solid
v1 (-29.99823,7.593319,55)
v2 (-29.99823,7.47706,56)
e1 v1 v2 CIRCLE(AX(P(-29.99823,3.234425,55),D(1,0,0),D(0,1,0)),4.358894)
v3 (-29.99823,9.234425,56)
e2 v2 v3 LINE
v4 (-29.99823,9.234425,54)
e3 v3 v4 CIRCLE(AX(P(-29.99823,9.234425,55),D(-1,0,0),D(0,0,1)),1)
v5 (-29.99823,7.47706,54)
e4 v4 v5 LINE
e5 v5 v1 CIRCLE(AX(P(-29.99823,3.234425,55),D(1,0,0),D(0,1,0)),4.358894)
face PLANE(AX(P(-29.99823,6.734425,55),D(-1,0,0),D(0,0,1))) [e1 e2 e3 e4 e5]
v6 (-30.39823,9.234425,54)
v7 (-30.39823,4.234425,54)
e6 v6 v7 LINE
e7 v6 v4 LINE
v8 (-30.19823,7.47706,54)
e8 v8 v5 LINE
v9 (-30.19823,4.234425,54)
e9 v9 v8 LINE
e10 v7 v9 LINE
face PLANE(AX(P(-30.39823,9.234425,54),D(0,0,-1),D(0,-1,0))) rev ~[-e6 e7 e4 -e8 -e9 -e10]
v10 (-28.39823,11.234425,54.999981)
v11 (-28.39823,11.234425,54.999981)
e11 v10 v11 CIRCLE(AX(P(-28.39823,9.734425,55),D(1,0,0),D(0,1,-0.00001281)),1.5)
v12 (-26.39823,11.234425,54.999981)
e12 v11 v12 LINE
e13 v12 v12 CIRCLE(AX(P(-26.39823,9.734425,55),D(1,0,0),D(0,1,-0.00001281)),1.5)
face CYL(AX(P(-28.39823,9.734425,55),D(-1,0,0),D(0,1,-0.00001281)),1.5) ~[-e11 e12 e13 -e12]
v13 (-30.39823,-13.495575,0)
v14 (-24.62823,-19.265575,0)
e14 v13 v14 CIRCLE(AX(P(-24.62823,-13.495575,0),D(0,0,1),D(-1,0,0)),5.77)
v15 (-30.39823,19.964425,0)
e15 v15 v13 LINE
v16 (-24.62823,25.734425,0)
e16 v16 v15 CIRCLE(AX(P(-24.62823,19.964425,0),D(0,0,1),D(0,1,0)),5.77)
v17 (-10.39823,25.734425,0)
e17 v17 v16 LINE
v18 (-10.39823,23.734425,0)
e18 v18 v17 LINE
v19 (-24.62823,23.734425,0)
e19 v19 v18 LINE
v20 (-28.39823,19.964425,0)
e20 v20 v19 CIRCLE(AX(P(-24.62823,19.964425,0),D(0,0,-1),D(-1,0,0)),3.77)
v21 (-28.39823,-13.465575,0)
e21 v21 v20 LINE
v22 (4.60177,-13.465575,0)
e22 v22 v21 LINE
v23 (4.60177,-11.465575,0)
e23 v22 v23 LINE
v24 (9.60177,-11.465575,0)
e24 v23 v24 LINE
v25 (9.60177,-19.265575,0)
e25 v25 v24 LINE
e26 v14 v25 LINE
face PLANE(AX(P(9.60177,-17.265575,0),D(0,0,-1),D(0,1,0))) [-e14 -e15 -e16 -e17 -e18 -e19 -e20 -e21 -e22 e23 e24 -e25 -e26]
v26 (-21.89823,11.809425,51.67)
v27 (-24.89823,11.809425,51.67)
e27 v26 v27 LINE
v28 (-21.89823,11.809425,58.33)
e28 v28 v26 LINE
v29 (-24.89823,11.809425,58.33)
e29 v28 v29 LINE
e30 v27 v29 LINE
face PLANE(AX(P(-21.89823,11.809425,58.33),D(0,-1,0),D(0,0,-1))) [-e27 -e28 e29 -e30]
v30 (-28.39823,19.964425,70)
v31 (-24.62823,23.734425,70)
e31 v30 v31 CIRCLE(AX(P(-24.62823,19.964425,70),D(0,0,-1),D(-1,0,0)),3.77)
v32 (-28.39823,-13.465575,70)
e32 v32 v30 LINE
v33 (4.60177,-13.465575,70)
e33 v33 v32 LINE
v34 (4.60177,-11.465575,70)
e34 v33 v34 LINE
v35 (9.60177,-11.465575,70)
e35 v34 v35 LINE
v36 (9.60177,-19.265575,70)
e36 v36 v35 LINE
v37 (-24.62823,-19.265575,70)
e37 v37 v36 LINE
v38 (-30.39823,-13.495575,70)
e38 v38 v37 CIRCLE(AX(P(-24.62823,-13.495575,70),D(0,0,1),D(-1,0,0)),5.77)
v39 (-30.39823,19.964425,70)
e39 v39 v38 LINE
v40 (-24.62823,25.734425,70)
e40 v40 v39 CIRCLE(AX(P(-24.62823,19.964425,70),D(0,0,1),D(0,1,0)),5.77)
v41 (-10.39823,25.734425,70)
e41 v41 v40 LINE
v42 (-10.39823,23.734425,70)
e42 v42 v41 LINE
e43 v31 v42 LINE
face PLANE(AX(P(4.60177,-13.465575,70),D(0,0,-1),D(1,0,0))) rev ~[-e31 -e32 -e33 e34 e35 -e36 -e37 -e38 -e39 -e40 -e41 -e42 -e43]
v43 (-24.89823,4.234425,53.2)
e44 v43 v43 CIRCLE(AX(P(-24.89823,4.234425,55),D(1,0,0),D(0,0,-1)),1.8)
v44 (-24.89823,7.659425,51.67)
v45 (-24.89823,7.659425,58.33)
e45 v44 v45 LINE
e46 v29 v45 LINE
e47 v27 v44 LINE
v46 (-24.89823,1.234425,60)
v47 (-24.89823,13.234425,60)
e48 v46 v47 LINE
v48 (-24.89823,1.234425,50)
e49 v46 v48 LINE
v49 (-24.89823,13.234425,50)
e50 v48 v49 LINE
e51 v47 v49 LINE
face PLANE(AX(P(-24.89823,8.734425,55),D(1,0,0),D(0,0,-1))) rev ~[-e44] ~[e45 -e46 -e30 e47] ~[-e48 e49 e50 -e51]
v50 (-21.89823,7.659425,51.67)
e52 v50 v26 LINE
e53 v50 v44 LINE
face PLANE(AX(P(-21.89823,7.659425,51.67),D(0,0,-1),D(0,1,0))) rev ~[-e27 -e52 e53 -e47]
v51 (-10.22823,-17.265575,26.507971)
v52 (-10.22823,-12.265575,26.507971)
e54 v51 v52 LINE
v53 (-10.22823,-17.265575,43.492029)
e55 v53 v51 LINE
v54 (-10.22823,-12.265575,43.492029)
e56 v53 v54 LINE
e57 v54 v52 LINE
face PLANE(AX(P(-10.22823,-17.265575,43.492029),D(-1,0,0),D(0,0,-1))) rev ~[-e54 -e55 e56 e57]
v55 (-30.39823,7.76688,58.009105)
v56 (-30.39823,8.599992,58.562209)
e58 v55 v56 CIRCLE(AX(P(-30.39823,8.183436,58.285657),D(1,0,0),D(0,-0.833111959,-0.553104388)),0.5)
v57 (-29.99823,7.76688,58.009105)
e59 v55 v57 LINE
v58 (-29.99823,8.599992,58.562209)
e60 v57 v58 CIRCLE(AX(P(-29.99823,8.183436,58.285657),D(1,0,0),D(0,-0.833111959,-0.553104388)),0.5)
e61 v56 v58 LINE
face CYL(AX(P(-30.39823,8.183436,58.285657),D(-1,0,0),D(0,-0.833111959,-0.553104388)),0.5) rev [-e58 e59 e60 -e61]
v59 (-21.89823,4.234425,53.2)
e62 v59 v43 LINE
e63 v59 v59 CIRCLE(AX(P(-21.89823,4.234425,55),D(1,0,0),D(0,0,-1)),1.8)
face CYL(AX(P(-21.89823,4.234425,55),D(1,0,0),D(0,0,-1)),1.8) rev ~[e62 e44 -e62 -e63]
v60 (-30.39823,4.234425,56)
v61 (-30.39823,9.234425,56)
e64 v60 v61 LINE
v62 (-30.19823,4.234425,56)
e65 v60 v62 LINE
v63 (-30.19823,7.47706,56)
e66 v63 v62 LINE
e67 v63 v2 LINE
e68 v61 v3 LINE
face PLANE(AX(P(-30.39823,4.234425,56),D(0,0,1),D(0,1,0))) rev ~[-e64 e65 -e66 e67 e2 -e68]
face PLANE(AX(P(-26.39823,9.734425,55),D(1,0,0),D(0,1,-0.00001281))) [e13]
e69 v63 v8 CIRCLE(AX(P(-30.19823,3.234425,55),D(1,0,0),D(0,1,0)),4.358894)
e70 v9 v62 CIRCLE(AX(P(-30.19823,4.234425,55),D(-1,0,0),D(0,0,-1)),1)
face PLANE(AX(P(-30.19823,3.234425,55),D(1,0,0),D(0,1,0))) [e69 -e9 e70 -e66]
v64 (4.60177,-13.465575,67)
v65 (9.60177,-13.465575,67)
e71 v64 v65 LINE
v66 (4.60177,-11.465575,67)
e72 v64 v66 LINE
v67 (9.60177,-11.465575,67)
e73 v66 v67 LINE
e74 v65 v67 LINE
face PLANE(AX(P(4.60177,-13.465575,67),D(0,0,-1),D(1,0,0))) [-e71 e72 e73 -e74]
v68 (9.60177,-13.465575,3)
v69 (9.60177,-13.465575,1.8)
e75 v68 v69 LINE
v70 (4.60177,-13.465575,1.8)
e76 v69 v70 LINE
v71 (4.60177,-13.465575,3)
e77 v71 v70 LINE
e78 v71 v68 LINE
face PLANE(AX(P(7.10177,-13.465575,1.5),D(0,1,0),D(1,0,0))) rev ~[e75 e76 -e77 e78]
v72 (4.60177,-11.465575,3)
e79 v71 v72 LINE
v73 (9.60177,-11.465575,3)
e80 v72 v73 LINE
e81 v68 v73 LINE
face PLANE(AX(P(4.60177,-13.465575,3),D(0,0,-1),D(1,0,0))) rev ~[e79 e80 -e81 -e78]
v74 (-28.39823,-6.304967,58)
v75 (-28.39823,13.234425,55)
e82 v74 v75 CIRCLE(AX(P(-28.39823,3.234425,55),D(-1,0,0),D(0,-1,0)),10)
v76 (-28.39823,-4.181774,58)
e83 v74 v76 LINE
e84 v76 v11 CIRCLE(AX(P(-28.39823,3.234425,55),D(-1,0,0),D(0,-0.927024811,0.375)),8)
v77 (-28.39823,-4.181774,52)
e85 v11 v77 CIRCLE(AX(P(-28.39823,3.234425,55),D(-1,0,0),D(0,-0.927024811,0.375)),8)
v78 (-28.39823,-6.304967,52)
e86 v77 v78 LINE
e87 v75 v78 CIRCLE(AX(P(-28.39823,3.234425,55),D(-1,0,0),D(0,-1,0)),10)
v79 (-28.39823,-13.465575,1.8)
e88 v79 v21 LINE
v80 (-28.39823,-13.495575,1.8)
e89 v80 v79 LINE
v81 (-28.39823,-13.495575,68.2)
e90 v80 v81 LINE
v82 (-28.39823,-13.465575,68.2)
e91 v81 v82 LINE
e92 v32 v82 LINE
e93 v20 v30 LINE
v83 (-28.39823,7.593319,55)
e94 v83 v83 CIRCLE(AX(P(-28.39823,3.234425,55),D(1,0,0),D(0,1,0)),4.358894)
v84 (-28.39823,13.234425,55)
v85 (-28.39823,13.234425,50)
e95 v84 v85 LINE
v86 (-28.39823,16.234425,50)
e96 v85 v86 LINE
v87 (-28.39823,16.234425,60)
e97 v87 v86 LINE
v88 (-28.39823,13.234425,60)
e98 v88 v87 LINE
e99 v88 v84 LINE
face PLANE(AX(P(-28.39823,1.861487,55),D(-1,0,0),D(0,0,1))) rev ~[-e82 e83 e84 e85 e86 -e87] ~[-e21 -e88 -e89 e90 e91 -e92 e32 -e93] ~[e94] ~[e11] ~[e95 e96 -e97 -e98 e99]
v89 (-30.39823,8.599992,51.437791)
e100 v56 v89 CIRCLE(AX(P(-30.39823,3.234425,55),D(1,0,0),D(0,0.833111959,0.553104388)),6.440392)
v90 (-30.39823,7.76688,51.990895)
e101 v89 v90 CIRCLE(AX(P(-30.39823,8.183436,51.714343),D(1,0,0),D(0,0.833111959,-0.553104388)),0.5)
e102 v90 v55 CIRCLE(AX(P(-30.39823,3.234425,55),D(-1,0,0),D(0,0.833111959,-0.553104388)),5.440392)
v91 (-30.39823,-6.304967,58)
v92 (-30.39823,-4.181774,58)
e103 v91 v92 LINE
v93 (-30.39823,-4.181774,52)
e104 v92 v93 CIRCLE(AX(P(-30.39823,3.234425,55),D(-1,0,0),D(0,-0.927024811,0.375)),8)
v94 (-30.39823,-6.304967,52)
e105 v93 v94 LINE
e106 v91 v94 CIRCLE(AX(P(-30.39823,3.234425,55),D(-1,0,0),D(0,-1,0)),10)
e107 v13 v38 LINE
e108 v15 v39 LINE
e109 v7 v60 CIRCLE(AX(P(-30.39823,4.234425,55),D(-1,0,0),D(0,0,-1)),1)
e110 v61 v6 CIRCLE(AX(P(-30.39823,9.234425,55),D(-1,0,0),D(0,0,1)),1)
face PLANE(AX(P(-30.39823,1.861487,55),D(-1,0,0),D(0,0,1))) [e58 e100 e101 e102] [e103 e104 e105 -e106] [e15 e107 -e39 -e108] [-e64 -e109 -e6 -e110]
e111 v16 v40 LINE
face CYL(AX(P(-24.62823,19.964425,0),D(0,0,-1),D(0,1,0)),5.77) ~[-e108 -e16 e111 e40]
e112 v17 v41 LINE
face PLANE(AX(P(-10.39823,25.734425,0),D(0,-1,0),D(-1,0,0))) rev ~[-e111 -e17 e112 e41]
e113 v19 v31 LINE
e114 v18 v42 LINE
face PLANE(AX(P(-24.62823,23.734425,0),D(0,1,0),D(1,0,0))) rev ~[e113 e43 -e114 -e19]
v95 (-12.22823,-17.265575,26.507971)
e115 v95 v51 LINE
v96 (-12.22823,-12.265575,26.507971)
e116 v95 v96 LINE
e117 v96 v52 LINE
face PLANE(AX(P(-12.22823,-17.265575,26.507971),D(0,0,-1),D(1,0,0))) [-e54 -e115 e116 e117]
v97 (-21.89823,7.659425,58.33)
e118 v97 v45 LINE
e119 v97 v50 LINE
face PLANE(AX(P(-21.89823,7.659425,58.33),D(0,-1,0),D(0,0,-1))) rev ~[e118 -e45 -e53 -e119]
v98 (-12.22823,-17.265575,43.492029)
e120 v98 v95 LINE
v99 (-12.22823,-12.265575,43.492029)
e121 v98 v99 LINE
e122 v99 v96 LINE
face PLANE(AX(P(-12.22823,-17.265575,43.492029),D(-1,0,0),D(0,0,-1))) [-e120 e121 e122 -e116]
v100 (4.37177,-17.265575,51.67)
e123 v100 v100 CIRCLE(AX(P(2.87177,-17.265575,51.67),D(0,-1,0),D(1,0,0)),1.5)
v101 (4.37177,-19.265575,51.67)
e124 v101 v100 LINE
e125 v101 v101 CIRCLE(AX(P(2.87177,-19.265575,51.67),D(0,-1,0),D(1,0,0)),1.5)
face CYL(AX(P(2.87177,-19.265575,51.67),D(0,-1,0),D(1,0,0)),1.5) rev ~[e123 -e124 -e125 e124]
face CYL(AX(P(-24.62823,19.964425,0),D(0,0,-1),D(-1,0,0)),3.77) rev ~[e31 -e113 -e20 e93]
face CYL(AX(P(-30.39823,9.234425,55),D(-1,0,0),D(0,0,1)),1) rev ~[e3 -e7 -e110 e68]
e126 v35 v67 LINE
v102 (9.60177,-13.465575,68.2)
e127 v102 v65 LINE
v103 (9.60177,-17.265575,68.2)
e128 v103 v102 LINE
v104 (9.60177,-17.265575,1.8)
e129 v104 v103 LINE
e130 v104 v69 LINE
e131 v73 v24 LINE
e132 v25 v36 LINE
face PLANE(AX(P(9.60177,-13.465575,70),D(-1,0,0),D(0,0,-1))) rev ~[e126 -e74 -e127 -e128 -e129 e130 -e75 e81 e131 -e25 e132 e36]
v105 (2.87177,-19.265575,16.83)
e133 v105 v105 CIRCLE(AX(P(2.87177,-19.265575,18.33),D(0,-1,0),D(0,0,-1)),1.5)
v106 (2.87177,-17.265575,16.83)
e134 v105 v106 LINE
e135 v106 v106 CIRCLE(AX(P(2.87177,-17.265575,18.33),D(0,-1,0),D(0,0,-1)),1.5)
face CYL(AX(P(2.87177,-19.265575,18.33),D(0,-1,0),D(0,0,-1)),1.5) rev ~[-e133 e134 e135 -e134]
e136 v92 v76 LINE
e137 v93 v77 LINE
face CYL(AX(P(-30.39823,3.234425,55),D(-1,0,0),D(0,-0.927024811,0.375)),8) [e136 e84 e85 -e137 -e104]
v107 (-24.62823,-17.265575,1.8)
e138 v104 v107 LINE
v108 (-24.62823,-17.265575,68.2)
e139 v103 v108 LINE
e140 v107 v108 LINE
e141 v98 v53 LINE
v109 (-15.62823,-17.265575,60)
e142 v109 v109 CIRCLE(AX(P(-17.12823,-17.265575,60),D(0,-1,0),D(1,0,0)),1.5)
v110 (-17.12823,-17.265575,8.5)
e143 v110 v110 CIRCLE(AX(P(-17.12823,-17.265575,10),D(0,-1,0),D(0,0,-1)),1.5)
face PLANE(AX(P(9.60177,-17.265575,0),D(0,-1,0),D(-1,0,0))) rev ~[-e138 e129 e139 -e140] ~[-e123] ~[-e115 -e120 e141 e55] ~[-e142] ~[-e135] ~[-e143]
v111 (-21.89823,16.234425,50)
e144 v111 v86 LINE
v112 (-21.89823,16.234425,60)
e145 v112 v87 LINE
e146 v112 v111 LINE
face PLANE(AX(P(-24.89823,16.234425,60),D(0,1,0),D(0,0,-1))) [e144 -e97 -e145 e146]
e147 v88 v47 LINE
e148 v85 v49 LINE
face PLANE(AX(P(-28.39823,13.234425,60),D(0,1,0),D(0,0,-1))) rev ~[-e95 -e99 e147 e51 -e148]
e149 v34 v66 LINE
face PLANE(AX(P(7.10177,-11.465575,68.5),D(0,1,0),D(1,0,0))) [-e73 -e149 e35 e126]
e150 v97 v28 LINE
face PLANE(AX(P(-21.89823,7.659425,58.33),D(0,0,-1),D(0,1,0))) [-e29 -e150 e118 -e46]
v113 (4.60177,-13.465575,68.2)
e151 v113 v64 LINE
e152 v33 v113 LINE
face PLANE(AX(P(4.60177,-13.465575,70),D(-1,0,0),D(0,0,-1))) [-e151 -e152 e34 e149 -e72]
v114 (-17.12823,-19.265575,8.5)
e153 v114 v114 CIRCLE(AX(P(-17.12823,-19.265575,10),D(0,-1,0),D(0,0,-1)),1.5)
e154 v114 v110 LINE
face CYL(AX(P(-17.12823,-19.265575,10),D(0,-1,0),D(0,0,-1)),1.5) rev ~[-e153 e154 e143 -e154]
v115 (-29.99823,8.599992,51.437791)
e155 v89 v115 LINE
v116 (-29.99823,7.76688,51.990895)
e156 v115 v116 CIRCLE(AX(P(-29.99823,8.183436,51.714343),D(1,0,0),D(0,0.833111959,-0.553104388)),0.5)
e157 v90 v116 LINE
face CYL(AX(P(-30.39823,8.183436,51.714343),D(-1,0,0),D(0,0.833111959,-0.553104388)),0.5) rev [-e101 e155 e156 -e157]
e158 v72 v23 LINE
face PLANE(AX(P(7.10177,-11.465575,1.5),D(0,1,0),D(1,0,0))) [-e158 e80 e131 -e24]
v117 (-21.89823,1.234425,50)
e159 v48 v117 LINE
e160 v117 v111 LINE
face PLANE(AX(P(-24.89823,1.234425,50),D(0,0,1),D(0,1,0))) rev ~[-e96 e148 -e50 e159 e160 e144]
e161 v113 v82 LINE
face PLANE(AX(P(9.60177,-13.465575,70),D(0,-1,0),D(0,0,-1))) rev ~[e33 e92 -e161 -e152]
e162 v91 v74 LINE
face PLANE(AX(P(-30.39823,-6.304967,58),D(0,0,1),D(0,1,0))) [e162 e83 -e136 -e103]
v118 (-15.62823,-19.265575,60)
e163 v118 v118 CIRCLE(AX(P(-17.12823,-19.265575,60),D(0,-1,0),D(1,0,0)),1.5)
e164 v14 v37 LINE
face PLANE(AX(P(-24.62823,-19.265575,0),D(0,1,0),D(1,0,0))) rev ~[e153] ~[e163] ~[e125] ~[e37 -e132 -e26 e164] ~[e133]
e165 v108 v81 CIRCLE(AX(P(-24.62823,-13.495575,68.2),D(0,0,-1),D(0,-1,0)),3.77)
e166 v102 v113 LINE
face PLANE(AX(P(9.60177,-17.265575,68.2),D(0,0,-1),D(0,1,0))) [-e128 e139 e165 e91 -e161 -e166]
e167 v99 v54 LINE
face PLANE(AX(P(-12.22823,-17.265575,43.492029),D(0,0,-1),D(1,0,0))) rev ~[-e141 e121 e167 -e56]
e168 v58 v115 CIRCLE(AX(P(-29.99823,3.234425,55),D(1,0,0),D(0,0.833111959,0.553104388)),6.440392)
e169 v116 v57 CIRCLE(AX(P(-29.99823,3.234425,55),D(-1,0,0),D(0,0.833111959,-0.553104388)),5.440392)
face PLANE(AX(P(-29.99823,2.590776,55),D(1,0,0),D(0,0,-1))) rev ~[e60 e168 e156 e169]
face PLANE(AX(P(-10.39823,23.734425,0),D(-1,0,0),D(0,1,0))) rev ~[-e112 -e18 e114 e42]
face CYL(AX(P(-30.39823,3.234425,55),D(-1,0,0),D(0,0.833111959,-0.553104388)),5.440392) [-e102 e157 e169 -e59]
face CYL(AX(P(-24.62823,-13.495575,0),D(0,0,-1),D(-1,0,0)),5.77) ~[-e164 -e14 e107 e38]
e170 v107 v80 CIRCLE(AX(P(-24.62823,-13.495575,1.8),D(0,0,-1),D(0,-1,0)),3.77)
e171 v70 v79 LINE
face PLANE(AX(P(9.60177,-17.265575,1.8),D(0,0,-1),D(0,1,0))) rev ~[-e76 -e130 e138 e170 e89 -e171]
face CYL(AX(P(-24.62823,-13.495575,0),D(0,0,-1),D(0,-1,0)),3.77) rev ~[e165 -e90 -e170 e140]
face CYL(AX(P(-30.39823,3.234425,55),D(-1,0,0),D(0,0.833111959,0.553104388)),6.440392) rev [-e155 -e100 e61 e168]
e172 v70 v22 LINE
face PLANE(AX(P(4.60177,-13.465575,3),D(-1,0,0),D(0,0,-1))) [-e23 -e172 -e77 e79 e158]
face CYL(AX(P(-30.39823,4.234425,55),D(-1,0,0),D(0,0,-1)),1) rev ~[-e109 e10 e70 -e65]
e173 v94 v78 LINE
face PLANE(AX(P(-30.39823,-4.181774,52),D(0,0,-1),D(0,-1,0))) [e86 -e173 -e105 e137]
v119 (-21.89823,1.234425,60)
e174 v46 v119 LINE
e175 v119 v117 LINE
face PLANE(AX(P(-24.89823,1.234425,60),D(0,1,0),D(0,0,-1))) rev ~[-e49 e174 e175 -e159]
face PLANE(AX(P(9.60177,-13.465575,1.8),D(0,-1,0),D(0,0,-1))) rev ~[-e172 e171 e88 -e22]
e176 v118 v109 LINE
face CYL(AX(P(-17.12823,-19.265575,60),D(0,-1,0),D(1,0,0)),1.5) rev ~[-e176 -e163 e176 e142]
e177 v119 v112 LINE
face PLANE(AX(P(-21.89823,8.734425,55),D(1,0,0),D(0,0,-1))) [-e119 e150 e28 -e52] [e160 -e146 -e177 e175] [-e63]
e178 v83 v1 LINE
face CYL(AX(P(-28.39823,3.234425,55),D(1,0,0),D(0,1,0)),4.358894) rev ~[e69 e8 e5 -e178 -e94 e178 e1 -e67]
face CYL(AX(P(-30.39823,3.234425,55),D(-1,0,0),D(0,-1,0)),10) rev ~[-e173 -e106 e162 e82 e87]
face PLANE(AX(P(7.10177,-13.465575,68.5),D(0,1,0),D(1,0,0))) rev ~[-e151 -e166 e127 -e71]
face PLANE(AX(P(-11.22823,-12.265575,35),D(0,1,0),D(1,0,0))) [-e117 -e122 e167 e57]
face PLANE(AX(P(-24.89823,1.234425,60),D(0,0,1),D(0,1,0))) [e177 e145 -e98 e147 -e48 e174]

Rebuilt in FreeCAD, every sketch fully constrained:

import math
import FreeCAD as App
import Part
import Sketcher

V = App.Vector

doc = App.newDocument("Part")
body = doc.addObject("PartDesign::Body", "Body")

sketch1 = doc.addObject("Sketcher::SketchObject", "Sketch")
body.addObject(sketch1)
sketch1.AttachmentSupport = (doc.XY_Plane, [""])
sketch1.MapMode = "FlatFace"
sketch1.addGeometry([
    Part.LineSegment(V(-30.39823, 19.964425, 0), V(-30.39823, -13.495575, 0)),
    Part.ArcOfCircle(Part.Circle(V(-24.62823, -13.495575, 0), V(0, 0, 1), 5.77), math.radians(180), math.radians(270)),
    Part.LineSegment(V(-24.62823, -19.265575, 0), V(9.60177, -19.265575, 0)),
    Part.LineSegment(V(9.60177, -19.265575, 0), V(9.60177, -17.265575, 0)),
    Part.LineSegment(V(9.60177, -17.265575, 0), V(-24.62823, -17.265575, 0)),
    Part.ArcOfCircle(Part.Circle(V(-24.62823, -13.495575, 0), V(0, 0, 1), 3.77), math.radians(180), math.radians(270)),
    Part.LineSegment(V(-28.39823, -13.495575, 0), V(-28.39823, 19.964425, 0)),
    Part.ArcOfCircle(Part.Circle(V(-24.62823, 19.964425, 0), V(0, 0, 1), 3.77), math.radians(90), math.radians(180)),
    Part.LineSegment(V(-24.62823, 23.734425, 0), V(-10.39823, 23.734425, 0)),
    Part.LineSegment(V(-10.39823, 23.734425, 0), V(-10.39823, 25.734425, 0)),
    Part.LineSegment(V(-10.39823, 25.734425, 0), V(-24.62823, 25.734425, 0)),
    Part.ArcOfCircle(Part.Circle(V(-24.62823, 19.964425, 0), V(0, 0, 1), 5.77), math.radians(90), math.radians(180)),
], False)
sketch1.addConstraint([
    Sketcher.Constraint("Tangent", 0, 2, 1, 1),
    Sketcher.Constraint("Tangent", 1, 2, 2, 1),
    Sketcher.Constraint("Coincident", 2, 2, 3, 1),
    Sketcher.Constraint("Coincident", 3, 2, 4, 1),
    Sketcher.Constraint("Tangent", 4, 2, 5, 2),
    Sketcher.Constraint("Tangent", 5, 1, 6, 1),
    Sketcher.Constraint("Tangent", 6, 2, 7, 2),
    Sketcher.Constraint("Tangent", 7, 1, 8, 1),
    Sketcher.Constraint("Coincident", 8, 2, 9, 1),
    Sketcher.Constraint("Coincident", 9, 2, 10, 1),
    Sketcher.Constraint("Tangent", 10, 2, 11, 1),
    Sketcher.Constraint("Tangent", 11, 2, 0, 1),
    Sketcher.Constraint("Vertical", 0),
    Sketcher.Constraint("Horizontal", 2),
    Sketcher.Constraint("Vertical", 3),
    Sketcher.Constraint("Horizontal", 4),
    Sketcher.Constraint("Vertical", 6),
    Sketcher.Constraint("Horizontal", 8),
    Sketcher.Constraint("Vertical", 9),
    Sketcher.Constraint("Horizontal", 10),
    Sketcher.Constraint("Coincident", 5, 3, 1, 3),
    Sketcher.Constraint("Coincident", 11, 3, 7, 3),
    Sketcher.Constraint("Equal", 5, 7),
    Sketcher.Constraint("DistanceY", 3, 1, 3, 2, 2.0),
    Sketcher.Constraint("Radius", 1, 5.77),
    Sketcher.Constraint("DistanceX", 0, 2, 2, 2, 40.0),
    Sketcher.Constraint("DistanceX", 6, 2, 8, 2, 18.0),
    Sketcher.Constraint("DistanceY", 0, 2, 0, 1, 33.46),
    Sketcher.Constraint("DistanceX", 1, 3, -1, 1, 24.62823),
    Sketcher.Constraint("DistanceY", 1, 3, -1, 1, 13.495575),
])
pad1 = doc.addObject("PartDesign::Pad", "Pad")
body.addObject(pad1)
pad1.Profile = sketch1
pad1.Length = 70

sketch2 = doc.addObject("Sketcher::SketchObject", "Sketch001")
body.addObject(sketch2)
sketch2.AttachmentSupport = (doc.YZ_Plane, [""])
sketch2.MapMode = "FlatFace"
sketch2.AttachmentOffset = App.Placement(V(0, 0, 9.60177), App.Rotation())
sketch2.addGeometry([
    Part.LineSegment(V(-13.465575, 70, 0), V(-17.265575, 70, 0)),
    Part.LineSegment(V(-17.265575, 70, 0), V(-17.265575, 68.2, 0)),
    Part.LineSegment(V(-17.265575, 68.2, 0), V(-13.465575, 68.2, 0)),
    Part.LineSegment(V(-13.465575, 68.2, 0), V(-13.465575, 70, 0)),
], False)
sketch2.addConstraint([
    Sketcher.Constraint("Coincident", 0, 2, 1, 1),
    Sketcher.Constraint("Coincident", 1, 2, 2, 1),
    Sketcher.Constraint("Coincident", 2, 2, 3, 1),
    Sketcher.Constraint("Coincident", 3, 2, 0, 1),
    Sketcher.Constraint("Horizontal", 0),
    Sketcher.Constraint("Vertical", 1),
    Sketcher.Constraint("Horizontal", 2),
    Sketcher.Constraint("Vertical", 3),
    Sketcher.Constraint("DistanceX", 0, 2, 0, 1, 3.8),
    Sketcher.Constraint("DistanceY", 1, 2, 1, 1, 1.8),
    Sketcher.Constraint("DistanceY", -1, 1, 0, 2, 70.0),
    Sketcher.Constraint("DistanceX", 0, 2, -1, 1, 17.265575),
])
pad2 = doc.addObject("PartDesign::Pad", "Pad001")
body.addObject(pad2)
pad2.Profile = sketch2
pad2.Type = "UpToFirst"
pad2.Reversed = True

sketch3 = doc.addObject("Sketcher::SketchObject", "Sketch002")
body.addObject(sketch3)
sketch3.AttachmentSupport = (doc.YZ_Plane, [""])
sketch3.MapMode = "FlatFace"
sketch3.AttachmentOffset = App.Placement(V(0, 0, 9.60177), App.Rotation())
sketch3.addGeometry([
    Part.LineSegment(V(-13.465575, 1.8, 0), V(-17.265575, 1.8, 0)),
    Part.LineSegment(V(-17.265575, 1.8, 0), V(-17.265575, 0, 0)),
    Part.LineSegment(V(-17.265575, 0, 0), V(-13.465575, 0, 0)),
    Part.LineSegment(V(-13.465575, 0, 0), V(-13.465575, 1.8, 0)),
], False)
sketch3.addConstraint([
    Sketcher.Constraint("Coincident", 0, 2, 1, 1),
    Sketcher.Constraint("Coincident", 1, 2, 2, 1),
    Sketcher.Constraint("Coincident", 2, 2, 3, 1),
    Sketcher.Constraint("Coincident", 3, 2, 0, 1),
    Sketcher.Constraint("Horizontal", 0),
    Sketcher.Constraint("Vertical", 1),
    Sketcher.Constraint("Horizontal", 2),
    Sketcher.Constraint("Vertical", 3),
    Sketcher.Constraint("PointOnObject", 1, 2, -1),
    Sketcher.Constraint("DistanceX", 0, 2, 0, 1, 3.8),
    Sketcher.Constraint("DistanceY", 1, 2, 1, 1, 1.8),
    Sketcher.Constraint("DistanceX", 0, 2, -1, 1, 17.265575),
])
pad3 = doc.addObject("PartDesign::Pad", "Pad002")
body.addObject(pad3)
pad3.Profile = sketch3
pad3.Type = "UpToFirst"
pad3.Reversed = True

sketch4 = doc.addObject("Sketcher::SketchObject", "Sketch003")
body.addObject(sketch4)
sketch4.AttachmentSupport = (doc.XZ_Plane, [""])
sketch4.MapMode = "FlatFace"
sketch4.AttachmentOffset = App.Placement(V(0, 0, 13.465575), App.Rotation())
sketch4.addGeometry([
    Part.LineSegment(V(4.60177, 67, 0), V(4.60177, 70, 0)),
    Part.LineSegment(V(4.60177, 70, 0), V(9.60177, 70, 0)),
    Part.LineSegment(V(9.60177, 70, 0), V(9.60177, 67, 0)),
    Part.LineSegment(V(9.60177, 67, 0), V(4.60177, 67, 0)),
    Part.LineSegment(V(4.60177, 0, 0), V(4.60177, 3, 0)),
    Part.LineSegment(V(4.60177, 3, 0), V(9.60177, 3, 0)),
    Part.LineSegment(V(9.60177, 3, 0), V(9.60177, 0, 0)),
    Part.LineSegment(V(9.60177, 0, 0), V(4.60177, 0, 0)),
], False)
sketch4.addConstraint([
    Sketcher.Constraint("Coincident", 0, 2, 1, 1),
    Sketcher.Constraint("Coincident", 1, 2, 2, 1),
    Sketcher.Constraint("Coincident", 2, 2, 3, 1),
    Sketcher.Constraint("Coincident", 3, 2, 0, 1),
    Sketcher.Constraint("Coincident", 4, 2, 5, 1),
    Sketcher.Constraint("Coincident", 5, 2, 6, 1),
    Sketcher.Constraint("Coincident", 6, 2, 7, 1),
    Sketcher.Constraint("Coincident", 7, 2, 4, 1),
    Sketcher.Constraint("Vertical", 0),
    Sketcher.Constraint("Horizontal", 1),
    Sketcher.Constraint("Vertical", 2),
    Sketcher.Constraint("Horizontal", 3),
    Sketcher.Constraint("Vertical", 4),
    Sketcher.Constraint("Horizontal", 5),
    Sketcher.Constraint("Vertical", 6),
    Sketcher.Constraint("Horizontal", 7),
    Sketcher.Constraint("PointOnObject", 6, 2, -1),
    Sketcher.Constraint("Vertical", 3, 2, 4, 2),
    Sketcher.Constraint("Vertical", 2, 2, 5, 2),
    Sketcher.Constraint("Equal", 2, 4),
    Sketcher.Constraint("DistanceX", 1, 1, 1, 2, 5.0),
    Sketcher.Constraint("DistanceY", 0, 1, 0, 2, 3.0),
    Sketcher.Constraint("DistanceY", -1, 1, 0, 2, 70.0),
    Sketcher.Constraint("DistanceX", -1, 1, 0, 2, 4.60177),
])
pad4 = doc.addObject("PartDesign::Pad", "Pad003")
body.addObject(pad4)
pad4.Profile = sketch4
pad4.Length = 2
pad4.Reversed = True

sketch5 = doc.addObject("Sketcher::SketchObject", "Sketch004")
body.addObject(sketch5)
sketch5.AttachmentSupport = (doc.XZ_Plane, [""])
sketch5.MapMode = "FlatFace"
sketch5.AttachmentOffset = App.Placement(V(0, 0, 19.265575), App.Rotation())
sketch5.addGeometry(Part.Circle(V(-17.12823, 60, 0), V(0, 0, 1), 1.5), False)
sketch5.addConstraint([
    Sketcher.Constraint("Diameter", 0, 3.0),
    Sketcher.Constraint("DistanceY", -1, 1, 0, 3, 60.0),
    Sketcher.Constraint("DistanceX", 0, 3, -1, 1, 17.12823),
])
pocket1 = doc.addObject("PartDesign::Pocket", "Pocket")
body.addObject(pocket1)
pocket1.Profile = sketch5
pocket1.Type = "UpToFirst"

sketch6 = doc.addObject("Sketcher::SketchObject", "Sketch005")
body.addObject(sketch6)
sketch6.AttachmentSupport = (doc.XZ_Plane, [""])
sketch6.MapMode = "FlatFace"
sketch6.AttachmentOffset = App.Placement(V(0, 0, 19.265575), App.Rotation())
sketch6.addGeometry(Part.Circle(V(-17.12823, 10, 0), V(0, 0, 1), 1.5), False)
sketch6.addConstraint([
    Sketcher.Constraint("Diameter", 0, 3.0),
    Sketcher.Constraint("DistanceY", -1, 1, 0, 3, 10.0),
    Sketcher.Constraint("DistanceX", 0, 3, -1, 1, 17.12823),
])
pocket2 = doc.addObject("PartDesign::Pocket", "Pocket001")
body.addObject(pocket2)
pocket2.Profile = sketch6
pocket2.Type = "UpToFirst"

sketch7 = doc.addObject("Sketcher::SketchObject", "Sketch006")
body.addObject(sketch7)
sketch7.AttachmentSupport = (doc.XZ_Plane, [""])
sketch7.MapMode = "FlatFace"
sketch7.AttachmentOffset = App.Placement(V(0, 0, 19.265575), App.Rotation())
sketch7.addGeometry(Part.Circle(V(2.87177, 51.67, 0), V(0, 0, 1), 1.5), False)
sketch7.addConstraint([
    Sketcher.Constraint("Diameter", 0, 3.0),
    Sketcher.Constraint("DistanceY", -1, 1, 0, 3, 51.67),
    Sketcher.Constraint("DistanceX", -1, 1, 0, 3, 2.87177),
])
pocket3 = doc.addObject("PartDesign::Pocket", "Pocket002")
body.addObject(pocket3)
pocket3.Profile = sketch7
pocket3.Type = "UpToFirst"

sketch8 = doc.addObject("Sketcher::SketchObject", "Sketch007")
body.addObject(sketch8)
sketch8.AttachmentSupport = (doc.XZ_Plane, [""])
sketch8.MapMode = "FlatFace"
sketch8.AttachmentOffset = App.Placement(V(0, 0, 19.265575), App.Rotation())
sketch8.addGeometry(Part.Circle(V(2.87177, 18.33, 0), V(0, 0, 1), 1.5), False)
sketch8.addConstraint([
    Sketcher.Constraint("Diameter", 0, 3.0),
    Sketcher.Constraint("DistanceY", -1, 1, 0, 3, 18.33),
    Sketcher.Constraint("DistanceX", -1, 1, 0, 3, 2.87177),
])
pocket4 = doc.addObject("PartDesign::Pocket", "Pocket003")
body.addObject(pocket4)
pocket4.Profile = sketch8
pocket4.Type = "UpToFirst"

sketch9 = doc.addObject("Sketcher::SketchObject", "Sketch008")
body.addObject(sketch9)
sketch9.AttachmentSupport = (doc.YZ_Plane, [""])
sketch9.MapMode = "FlatFace"
sketch9.AttachmentOffset = App.Placement(V(0, 0, -30.39823), App.Rotation())
sketch9.addGeometry(Part.Circle(V(3.234425, 55, 0), V(0, 0, 1), 10), False)
sketch9.addConstraint([
    Sketcher.Constraint("Diameter", 0, 20.0),
    Sketcher.Constraint("DistanceY", -1, 1, 0, 3, 55.0),
    Sketcher.Constraint("DistanceX", -1, 1, 0, 3, 3.234425),
])
pocket5 = doc.addObject("PartDesign::Pocket", "Pocket004")
body.addObject(pocket5)
pocket5.Profile = sketch9
pocket5.Type = "ThroughAll"
pocket5.Reversed = True

sketch10 = doc.addObject("Sketcher::SketchObject", "Sketch009")
body.addObject(sketch10)
sketch10.AttachmentSupport = (doc.YZ_Plane, [""])
sketch10.MapMode = "FlatFace"
sketch10.AttachmentOffset = App.Placement(V(0, 0, -30.39823), App.Rotation())
sketch10.addGeometry([
    Part.LineSegment(V(-4.181774, 52, 0), V(-6.304967, 52, 0)),
    Part.ArcOfCircle(Part.Circle(V(3.234425, 55, 0), V(0, 0, 1), 10), math.radians(162.542397), math.radians(197.457603)),
    Part.LineSegment(V(-6.304967, 58, 0), V(-4.181774, 58, 0)),
    Part.ArcOfCircle(Part.Circle(V(3.234425, 55, 0), V(0, 0, 1), 8), math.radians(-157.975687), math.radians(157.975687)),
], False)
sketch10.addConstraint([
    Sketcher.Constraint("Coincident", 0, 2, 1, 2),
    Sketcher.Constraint("Coincident", 1, 1, 2, 1),
    Sketcher.Constraint("Coincident", 2, 2, 3, 2),
    Sketcher.Constraint("Coincident", 3, 1, 0, 1),
    Sketcher.Constraint("Horizontal", 0),
    Sketcher.Constraint("Horizontal", 2),
    Sketcher.Constraint("Coincident", 3, 3, 1, 3),
    Sketcher.Constraint("Vertical", 0, 2, 1, 1),
    Sketcher.Constraint("Radius", 1, 10.0),
    Sketcher.Constraint("Radius", 3, 8.0),
    Sketcher.Constraint("DistanceY", -1, 1, 1, 3, 55.0),
    Sketcher.Constraint("DistanceY", -1, 1, 0, 2, 52.0),
    Sketcher.Constraint("DistanceX", -1, 1, 1, 3, 3.234425),
])
pad5 = doc.addObject("PartDesign::Pad", "Pad004")
body.addObject(pad5)
pad5.Profile = sketch10
pad5.Length = 2

sketch11 = doc.addObject("Sketcher::SketchObject", "Sketch010")
body.addObject(sketch11)
sketch11.AttachmentSupport = (doc.YZ_Plane, [""])
sketch11.MapMode = "FlatFace"
sketch11.AttachmentOffset = App.Placement(V(0, 0, -28.39823), App.Rotation())
sketch11.addGeometry(Part.Circle(V(3.234425, 55, 0), V(0, 0, 1), 4.358894), False)
sketch11.addConstraint([
    Sketcher.Constraint("DistanceY", -1, 1, 0, 3, 55.0),
    Sketcher.Constraint("Diameter", 0, 8.717788),
    Sketcher.Constraint("DistanceX", -1, 1, 0, 3, 3.234425),
])
pocket6 = doc.addObject("PartDesign::Pocket", "Pocket005")
body.addObject(pocket6)
pocket6.Profile = sketch11
pocket6.Length = 1.8

sketch12 = doc.addObject("Sketcher::SketchObject", "Sketch011")
body.addObject(sketch12)
sketch12.AttachmentSupport = (doc.YZ_Plane, [""])
sketch12.MapMode = "FlatFace"
sketch12.AttachmentOffset = App.Placement(V(0, 0, -28.39823), App.Rotation())
sketch12.addGeometry(Part.Circle(V(9.734425, 55, 0), V(0, 0, 1), 1.5), False)
sketch12.addConstraint([
    Sketcher.Constraint("Diameter", 0, 3.0),
    Sketcher.Constraint("DistanceY", -1, 1, 0, 3, 55.0),
    Sketcher.Constraint("DistanceX", -1, 1, 0, 3, 9.734425),
])
pad6 = doc.addObject("PartDesign::Pad", "Pad005")
body.addObject(pad6)
pad6.Profile = sketch12
pad6.Length = 2

sketch13 = doc.addObject("Sketcher::SketchObject", "Sketch012")
body.addObject(sketch13)
sketch13.AttachmentSupport = (doc.YZ_Plane, [""])
sketch13.MapMode = "FlatFace"
sketch13.AttachmentOffset = App.Placement(V(0, 0, -28.39823), App.Rotation())
sketch13.addGeometry([
    Part.LineSegment(V(16.234425, 60, 0), V(13.234425, 60, 0)),
    Part.LineSegment(V(13.234425, 60, 0), V(13.234425, 50, 0)),
    Part.LineSegment(V(13.234425, 50, 0), V(16.234425, 50, 0)),
    Part.LineSegment(V(16.234425, 50, 0), V(16.234425, 60, 0)),
], False)
sketch13.addConstraint([
    Sketcher.Constraint("Coincident", 0, 2, 1, 1),
    Sketcher.Constraint("Coincident", 1, 2, 2, 1),
    Sketcher.Constraint("Coincident", 2, 2, 3, 1),
    Sketcher.Constraint("Coincident", 3, 2, 0, 1),
    Sketcher.Constraint("Horizontal", 0),
    Sketcher.Constraint("Vertical", 1),
    Sketcher.Constraint("Horizontal", 2),
    Sketcher.Constraint("Vertical", 3),
    Sketcher.Constraint("DistanceX", 0, 2, 0, 1, 3.0),
    Sketcher.Constraint("DistanceY", 1, 2, 1, 1, 10.0),
    Sketcher.Constraint("DistanceY", -1, 1, 0, 2, 60.0),
    Sketcher.Constraint("DistanceX", -1, 1, 0, 2, 13.234425),
])
pad7 = doc.addObject("PartDesign::Pad", "Pad006")
body.addObject(pad7)
pad7.Profile = sketch13
pad7.Length = 3.5

sketch14 = doc.addObject("Sketcher::SketchObject", "Sketch013")
body.addObject(sketch14)
sketch14.AttachmentSupport = (doc.YZ_Plane, [""])
sketch14.MapMode = "FlatFace"
sketch14.AttachmentOffset = App.Placement(V(0, 0, -24.89823), App.Rotation())
sketch14.addGeometry([
    Part.LineSegment(V(16.234425, 60, 0), V(1.234425, 60, 0)),
    Part.LineSegment(V(1.234425, 60, 0), V(1.234425, 50, 0)),
    Part.LineSegment(V(1.234425, 50, 0), V(16.234425, 50, 0)),
    Part.LineSegment(V(16.234425, 50, 0), V(16.234425, 60, 0)),
], False)
sketch14.addConstraint([
    Sketcher.Constraint("Coincident", 0, 2, 1, 1),
    Sketcher.Constraint("Coincident", 1, 2, 2, 1),
    Sketcher.Constraint("Coincident", 2, 2, 3, 1),
    Sketcher.Constraint("Coincident", 3, 2, 0, 1),
    Sketcher.Constraint("Horizontal", 0),
    Sketcher.Constraint("Vertical", 1),
    Sketcher.Constraint("Horizontal", 2),
    Sketcher.Constraint("Vertical", 3),
    Sketcher.Constraint("DistanceX", 0, 2, 0, 1, 15.0),
    Sketcher.Constraint("DistanceY", 1, 2, 1, 1, 10.0),
    Sketcher.Constraint("DistanceY", -1, 1, 0, 2, 60.0),
    Sketcher.Constraint("DistanceX", -1, 1, 0, 2, 1.234425),
])
pad8 = doc.addObject("PartDesign::Pad", "Pad007")
body.addObject(pad8)
pad8.Profile = sketch14
pad8.Length = 3

sketch15 = doc.addObject("Sketcher::SketchObject", "Sketch014")
body.addObject(sketch15)
sketch15.AttachmentSupport = (doc.YZ_Plane, [""])
sketch15.MapMode = "FlatFace"
sketch15.AttachmentOffset = App.Placement(V(0, 0, -21.89823), App.Rotation())
sketch15.addGeometry([
    Part.LineSegment(V(11.809425, 58.33, 0), V(7.659425, 58.33, 0)),
    Part.LineSegment(V(7.659425, 58.33, 0), V(7.659425, 51.67, 0)),
    Part.LineSegment(V(7.659425, 51.67, 0), V(11.809425, 51.67, 0)),
    Part.LineSegment(V(11.809425, 51.67, 0), V(11.809425, 58.33, 0)),
], False)
sketch15.addConstraint([
    Sketcher.Constraint("Coincident", 0, 2, 1, 1),
    Sketcher.Constraint("Coincident", 1, 2, 2, 1),
    Sketcher.Constraint("Coincident", 2, 2, 3, 1),
    Sketcher.Constraint("Coincident", 3, 2, 0, 1),
    Sketcher.Constraint("Horizontal", 0),
    Sketcher.Constraint("Vertical", 1),
    Sketcher.Constraint("Horizontal", 2),
    Sketcher.Constraint("Vertical", 3),
    Sketcher.Constraint("DistanceX", 0, 2, 0, 1, 4.15),
    Sketcher.Constraint("DistanceY", 1, 2, 1, 1, 6.66),
    Sketcher.Constraint("DistanceY", -1, 1, 0, 2, 58.33),
    Sketcher.Constraint("DistanceX", -1, 1, 0, 2, 7.659425),
])
pocket7 = doc.addObject("PartDesign::Pocket", "Pocket006")
body.addObject(pocket7)
pocket7.Profile = sketch15
pocket7.Type = "UpToFirst"

sketch16 = doc.addObject("Sketcher::SketchObject", "Sketch015")
body.addObject(sketch16)
sketch16.AttachmentSupport = (doc.YZ_Plane, [""])
sketch16.MapMode = "FlatFace"
sketch16.AttachmentOffset = App.Placement(V(0, 0, -21.89823), App.Rotation())
sketch16.addGeometry(Part.Circle(V(4.234425, 55, 0), V(0, 0, 1), 1.8), False)
sketch16.addConstraint([
    Sketcher.Constraint("Diameter", 0, 3.6),
    Sketcher.Constraint("DistanceY", -1, 1, 0, 3, 55.0),
    Sketcher.Constraint("DistanceX", -1, 1, 0, 3, 4.234425),
])
pocket8 = doc.addObject("PartDesign::Pocket", "Pocket007")
body.addObject(pocket8)
pocket8.Profile = sketch16
pocket8.Type = "UpToFirst"

sketch17 = doc.addObject("Sketcher::SketchObject", "Sketch016")
body.addObject(sketch17)
sketch17.AttachmentSupport = (doc.YZ_Plane, [""])
sketch17.MapMode = "FlatFace"
sketch17.AttachmentOffset = App.Placement(V(0, 0, -30.39823), App.Rotation())
sketch17.addGeometry([
    Part.LineSegment(V(9.234425, 54, 0), V(4.234425, 54, 0)),
    Part.ArcOfCircle(Part.Circle(V(4.234425, 55, 0), V(0, 0, 1), 1), math.radians(90), math.radians(270)),
    Part.LineSegment(V(4.234425, 56, 0), V(9.234425, 56, 0)),
    Part.ArcOfCircle(Part.Circle(V(9.234425, 55, 0), V(0, 0, 1), 1), math.radians(-90), math.radians(90)),
    Part.ArcOfCircle(Part.Circle(V(3.234425, 55, 0), V(0, 0, 1), 5.440392), math.radians(33.580249), math.radians(326.419751)),
    Part.ArcOfCircle(Part.Circle(V(8.183436, 51.714343, 0), V(0, 0, 1), 0.5), math.radians(-33.580249), math.radians(146.419751)),
    Part.ArcOfCircle(Part.Circle(V(3.234425, 55, 0), V(0, 0, 1), 6.440392), math.radians(33.580249), math.radians(326.419751)),
    Part.ArcOfCircle(Part.Circle(V(8.183436, 58.285657, 0), V(0, 0, 1), 0.5), math.radians(-146.419751), math.radians(33.580249)),
], False)
sketch17.addConstraint([
    Sketcher.Constraint("Tangent", 0, 2, 1, 2),
    Sketcher.Constraint("Tangent", 1, 1, 2, 1),
    Sketcher.Constraint("Tangent", 2, 2, 3, 2),
    Sketcher.Constraint("Tangent", 3, 1, 0, 1),
    Sketcher.Constraint("Tangent", 4, 2, 5, 2),
    Sketcher.Constraint("Tangent", 5, 1, 6, 2),
    Sketcher.Constraint("Tangent", 6, 1, 7, 2),
    Sketcher.Constraint("Tangent", 7, 1, 4, 1),
    Sketcher.Constraint("Horizontal", 0),
    Sketcher.Constraint("Horizontal", 2),
    Sketcher.Constraint("Coincident", 6, 3, 4, 3),
    Sketcher.Constraint("Horizontal", 3, 3, 4, 3),
    Sketcher.Constraint("Vertical", 5, 3, 7, 3),
    Sketcher.Constraint("Radius", 1, 1.0),
    Sketcher.Constraint("Radius", 5, 0.5),
    Sketcher.Constraint("DistanceX", 0, 2, 0, 1, 5.0),
    Sketcher.Constraint("DistanceY", -1, 1, 1, 3, 55.0),
    Sketcher.Constraint("DistanceX", 4, 3, 1, 3, 1.0),
    Sketcher.Constraint("Radius", 4, 5.440392),
    Sketcher.Constraint("DistanceX", -1, 1, 4, 2, 7.76688),
    Sketcher.Constraint("DistanceY", -1, 1, 5, 1, 51.437791),
])
pocket9 = doc.addObject("PartDesign::Pocket", "Pocket008")
body.addObject(pocket9)
pocket9.Profile = sketch17
pocket9.Length = 0.4
pocket9.Reversed = True

sketch18 = doc.addObject("Sketcher::SketchObject", "Sketch017")
body.addObject(sketch18)
sketch18.AttachmentSupport = (doc.XZ_Plane, [""])
sketch18.MapMode = "FlatFace"
sketch18.AttachmentOffset = App.Placement(V(0, 0, 17.265575), App.Rotation())
sketch18.addGeometry([
    Part.LineSegment(V(-12.22823, 26.507971, 0), V(-12.22823, 43.492029, 0)),
    Part.LineSegment(V(-12.22823, 43.492029, 0), V(-10.22823, 43.492029, 0)),
    Part.LineSegment(V(-10.22823, 43.492029, 0), V(-10.22823, 26.507971, 0)),
    Part.LineSegment(V(-10.22823, 26.507971, 0), V(-12.22823, 26.507971, 0)),
], False)
sketch18.addConstraint([
    Sketcher.Constraint("Coincident", 0, 2, 1, 1),
    Sketcher.Constraint("Coincident", 1, 2, 2, 1),
    Sketcher.Constraint("Coincident", 2, 2, 3, 1),
    Sketcher.Constraint("Coincident", 3, 2, 0, 1),
    Sketcher.Constraint("Vertical", 0),
    Sketcher.Constraint("Horizontal", 1),
    Sketcher.Constraint("Vertical", 2),
    Sketcher.Constraint("Horizontal", 3),
    Sketcher.Constraint("DistanceX", 1, 1, 1, 2, 2.0),
    Sketcher.Constraint("DistanceY", 0, 1, 0, 2, 16.984057),
    Sketcher.Constraint("DistanceX", 0, 2, -1, 1, 12.22823),
    Sketcher.Constraint("DistanceY", -1, 1, 0, 2, 43.492029),
])
pad9 = doc.addObject("PartDesign::Pad", "Pad008")
body.addObject(pad9)
pad9.Profile = sketch18
pad9.Length = 5
pad9.Reversed = True

doc.recompute()
